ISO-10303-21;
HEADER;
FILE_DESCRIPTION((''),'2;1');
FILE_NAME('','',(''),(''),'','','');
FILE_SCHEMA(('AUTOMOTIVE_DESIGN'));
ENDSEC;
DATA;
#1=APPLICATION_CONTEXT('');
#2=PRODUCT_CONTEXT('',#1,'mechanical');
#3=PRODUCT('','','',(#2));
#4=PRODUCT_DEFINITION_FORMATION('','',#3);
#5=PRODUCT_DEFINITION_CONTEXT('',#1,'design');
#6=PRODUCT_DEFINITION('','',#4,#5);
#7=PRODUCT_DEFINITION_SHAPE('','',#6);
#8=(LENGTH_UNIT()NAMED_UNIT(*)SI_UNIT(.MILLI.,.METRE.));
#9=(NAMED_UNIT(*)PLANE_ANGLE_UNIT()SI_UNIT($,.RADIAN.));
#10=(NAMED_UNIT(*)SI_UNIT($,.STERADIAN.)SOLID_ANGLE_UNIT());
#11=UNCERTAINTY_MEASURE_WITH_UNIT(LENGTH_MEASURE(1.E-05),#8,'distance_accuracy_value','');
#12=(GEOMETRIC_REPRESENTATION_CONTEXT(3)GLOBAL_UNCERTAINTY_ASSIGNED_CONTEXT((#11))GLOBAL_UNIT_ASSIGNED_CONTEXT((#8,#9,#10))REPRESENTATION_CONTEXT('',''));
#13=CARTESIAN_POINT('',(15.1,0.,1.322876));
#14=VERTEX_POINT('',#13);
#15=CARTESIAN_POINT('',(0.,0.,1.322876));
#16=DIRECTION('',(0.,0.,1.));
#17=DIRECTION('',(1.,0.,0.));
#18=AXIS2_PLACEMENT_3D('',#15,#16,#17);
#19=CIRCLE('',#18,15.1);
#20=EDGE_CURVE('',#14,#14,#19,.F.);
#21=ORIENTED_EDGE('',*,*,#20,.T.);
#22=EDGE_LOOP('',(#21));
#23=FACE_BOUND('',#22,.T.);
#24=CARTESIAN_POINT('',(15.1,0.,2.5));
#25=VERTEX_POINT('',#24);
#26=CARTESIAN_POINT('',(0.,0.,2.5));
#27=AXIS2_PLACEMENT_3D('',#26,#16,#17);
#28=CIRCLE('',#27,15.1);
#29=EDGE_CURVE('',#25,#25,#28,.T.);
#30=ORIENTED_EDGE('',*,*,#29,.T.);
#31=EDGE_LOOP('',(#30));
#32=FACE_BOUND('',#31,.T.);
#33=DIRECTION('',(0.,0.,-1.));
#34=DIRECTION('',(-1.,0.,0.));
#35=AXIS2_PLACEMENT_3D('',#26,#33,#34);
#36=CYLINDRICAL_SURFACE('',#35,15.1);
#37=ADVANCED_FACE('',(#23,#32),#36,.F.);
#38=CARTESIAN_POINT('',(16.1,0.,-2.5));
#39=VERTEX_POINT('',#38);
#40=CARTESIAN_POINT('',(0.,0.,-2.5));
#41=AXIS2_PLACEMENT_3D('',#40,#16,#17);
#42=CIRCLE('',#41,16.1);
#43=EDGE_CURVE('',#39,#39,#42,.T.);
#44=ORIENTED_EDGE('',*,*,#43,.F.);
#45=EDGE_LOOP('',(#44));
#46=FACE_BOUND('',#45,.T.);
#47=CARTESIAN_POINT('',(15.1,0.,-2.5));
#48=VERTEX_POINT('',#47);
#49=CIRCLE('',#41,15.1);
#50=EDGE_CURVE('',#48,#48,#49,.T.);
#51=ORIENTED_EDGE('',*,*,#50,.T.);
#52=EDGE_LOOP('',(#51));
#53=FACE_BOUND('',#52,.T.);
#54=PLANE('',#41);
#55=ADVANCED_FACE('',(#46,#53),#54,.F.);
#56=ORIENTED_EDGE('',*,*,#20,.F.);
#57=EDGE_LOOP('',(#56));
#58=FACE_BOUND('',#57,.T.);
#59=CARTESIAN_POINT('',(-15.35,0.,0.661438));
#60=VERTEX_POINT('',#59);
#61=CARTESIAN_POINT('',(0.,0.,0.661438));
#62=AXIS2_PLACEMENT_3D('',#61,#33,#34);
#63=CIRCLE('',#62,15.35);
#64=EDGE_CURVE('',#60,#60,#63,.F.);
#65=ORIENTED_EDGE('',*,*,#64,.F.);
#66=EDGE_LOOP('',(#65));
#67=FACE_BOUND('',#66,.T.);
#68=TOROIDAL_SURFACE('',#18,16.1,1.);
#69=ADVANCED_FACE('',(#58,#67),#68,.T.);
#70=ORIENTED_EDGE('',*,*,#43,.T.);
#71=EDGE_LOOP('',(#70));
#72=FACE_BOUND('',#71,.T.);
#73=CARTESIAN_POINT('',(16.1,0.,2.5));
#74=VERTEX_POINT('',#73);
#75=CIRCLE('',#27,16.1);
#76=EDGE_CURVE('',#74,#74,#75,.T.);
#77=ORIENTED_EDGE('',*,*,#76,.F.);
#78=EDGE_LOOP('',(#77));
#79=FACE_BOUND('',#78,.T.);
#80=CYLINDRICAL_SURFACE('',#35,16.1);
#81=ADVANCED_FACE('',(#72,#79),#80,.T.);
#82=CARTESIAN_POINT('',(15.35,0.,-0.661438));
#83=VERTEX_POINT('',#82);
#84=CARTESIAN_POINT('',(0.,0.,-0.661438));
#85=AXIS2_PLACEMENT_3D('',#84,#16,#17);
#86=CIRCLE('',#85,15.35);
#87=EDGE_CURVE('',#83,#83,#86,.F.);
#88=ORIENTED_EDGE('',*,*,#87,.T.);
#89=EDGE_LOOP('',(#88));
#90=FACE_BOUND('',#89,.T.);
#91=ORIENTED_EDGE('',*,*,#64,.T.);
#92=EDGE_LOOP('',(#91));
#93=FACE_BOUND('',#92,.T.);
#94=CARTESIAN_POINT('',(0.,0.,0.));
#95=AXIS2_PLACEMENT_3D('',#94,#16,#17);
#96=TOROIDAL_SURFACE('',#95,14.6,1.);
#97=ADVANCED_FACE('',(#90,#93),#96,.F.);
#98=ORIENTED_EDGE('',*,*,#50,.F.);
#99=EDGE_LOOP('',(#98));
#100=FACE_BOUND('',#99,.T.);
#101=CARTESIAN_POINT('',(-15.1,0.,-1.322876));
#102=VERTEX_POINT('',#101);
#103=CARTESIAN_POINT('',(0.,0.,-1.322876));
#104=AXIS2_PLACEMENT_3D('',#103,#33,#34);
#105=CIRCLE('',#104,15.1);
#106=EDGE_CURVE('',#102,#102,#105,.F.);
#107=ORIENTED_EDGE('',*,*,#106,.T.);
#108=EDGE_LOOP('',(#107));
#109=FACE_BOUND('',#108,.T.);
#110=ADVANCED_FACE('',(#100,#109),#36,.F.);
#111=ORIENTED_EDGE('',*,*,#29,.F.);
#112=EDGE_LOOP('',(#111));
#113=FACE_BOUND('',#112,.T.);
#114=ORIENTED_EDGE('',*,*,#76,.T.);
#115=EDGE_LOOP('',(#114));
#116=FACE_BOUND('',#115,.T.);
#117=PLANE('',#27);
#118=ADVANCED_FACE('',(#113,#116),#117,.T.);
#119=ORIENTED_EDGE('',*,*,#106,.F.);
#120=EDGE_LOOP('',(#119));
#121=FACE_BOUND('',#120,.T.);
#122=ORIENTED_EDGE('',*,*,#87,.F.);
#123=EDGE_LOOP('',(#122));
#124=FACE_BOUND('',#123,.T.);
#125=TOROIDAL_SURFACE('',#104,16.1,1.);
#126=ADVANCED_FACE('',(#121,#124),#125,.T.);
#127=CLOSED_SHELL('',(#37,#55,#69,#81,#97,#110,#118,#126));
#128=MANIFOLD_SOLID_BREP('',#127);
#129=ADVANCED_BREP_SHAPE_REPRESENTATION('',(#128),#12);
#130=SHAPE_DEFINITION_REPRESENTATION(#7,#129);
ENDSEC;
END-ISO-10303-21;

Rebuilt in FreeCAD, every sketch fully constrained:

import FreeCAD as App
import Part
import Sketcher
from FreeCAD import Vector
Q = App.Units.Quantity


def edges_at(feature, points):
    """Names of the edges that pass closest to the given points."""
    edges = feature.Shape.Edges
    near = lambda p: min(range(len(edges)), key=lambda i: edges[i].distToShape(Part.Vertex(*p))[0])
    return sorted({f"Edge{near(p) + 1}" for p in points})

doc = App.newDocument("Part")
params = doc.addObject("Spreadsheet::Sheet", "Params")
for row, (alias, value) in enumerate([
    ("sketch1_diameter", "32.2 mm"),
    ("sketch1_diameter2", "30.2 mm"),
    ("pad1_length", "5 mm"),
    ("sketch2_diameter", "2 mm"),
    ("groove_angle", "360 deg"),
    ("fillet_radius", "1 mm"),
], start=1):
    params.set(f"A{row}", alias)
    params.set(f"B{row}", "=" + value)
    params.setAlias(f"B{row}", alias)

body = doc.addObject("PartDesign::Body", "Body")

sketch1 = body.newObject("Sketcher::SketchObject", "Sketch")
sketch1.AttachmentSupport = (doc.getObject("XY_Plane"), [""])
sketch1.MapMode = "FlatFace"
sketch1.addGeometry(Part.Circle(Vector(0, 0, 0), Vector(0, 0, 1), 16), False)
sketch1.addGeometry(Part.Circle(Vector(0, 0, 0), Vector(0, 0, 1), 15), False)
sketch1.addConstraint(Sketcher.Constraint("Coincident", 0, 3, -1, 1))
sketch1.addConstraint(Sketcher.Constraint("Coincident", 1, 3, -1, 1))
sketch1.addConstraint(Sketcher.Constraint("Diameter", 0, Q("32.2 mm")))
sketch1.addConstraint(Sketcher.Constraint("Diameter", 1, Q("30.2 mm")))
sketch1.setExpression("Constraints[2]", "Params.sketch1_diameter")
sketch1.setExpression("Constraints[3]", "Params.sketch1_diameter2")
pad1 = body.newObject("PartDesign::Pad", "Pad")
pad1.Profile = sketch1
pad1.setExpression("Length", "Params.pad1_length")
pad1.Midplane = True

sketch2 = body.newObject("Sketcher::SketchObject", "Sketch001")
sketch2.AttachmentSupport = (doc.getObject("XZ_Plane"), [""])
sketch2.MapMode = "FlatFace"
sketch2.addGeometry(Part.Circle(Vector(-14.6, 0, 0), Vector(0, 0, 1), 1), False)
sketch2.addConstraint(Sketcher.Constraint("PointOnObject", 0, 3, -1))
sketch2.addConstraint(Sketcher.Constraint("Diameter", 0, Q("2 mm")))
sketch2.addConstraint(Sketcher.Constraint("DistanceX", 0, 3, -1, 1, Q("14.6 mm")))
sketch2.setExpression("Constraints[1]", "Params.sketch2_diameter")
groove = body.newObject("PartDesign::Groove", "Groove")
groove.Profile = sketch2
groove.ReferenceAxis = (sketch2, ["V_Axis"])
groove.setExpression("Angle", "Params.groove_angle")
doc.recompute()

fillet = body.newObject("PartDesign::Fillet", "Fillet")
fillet.Base = (groove, edges_at(groove, [(0, 15.1, 0.866), (0, -15.1, -0.866)]))
fillet.setExpression("Radius", "Params.fillet_radius")

doc.recompute()
